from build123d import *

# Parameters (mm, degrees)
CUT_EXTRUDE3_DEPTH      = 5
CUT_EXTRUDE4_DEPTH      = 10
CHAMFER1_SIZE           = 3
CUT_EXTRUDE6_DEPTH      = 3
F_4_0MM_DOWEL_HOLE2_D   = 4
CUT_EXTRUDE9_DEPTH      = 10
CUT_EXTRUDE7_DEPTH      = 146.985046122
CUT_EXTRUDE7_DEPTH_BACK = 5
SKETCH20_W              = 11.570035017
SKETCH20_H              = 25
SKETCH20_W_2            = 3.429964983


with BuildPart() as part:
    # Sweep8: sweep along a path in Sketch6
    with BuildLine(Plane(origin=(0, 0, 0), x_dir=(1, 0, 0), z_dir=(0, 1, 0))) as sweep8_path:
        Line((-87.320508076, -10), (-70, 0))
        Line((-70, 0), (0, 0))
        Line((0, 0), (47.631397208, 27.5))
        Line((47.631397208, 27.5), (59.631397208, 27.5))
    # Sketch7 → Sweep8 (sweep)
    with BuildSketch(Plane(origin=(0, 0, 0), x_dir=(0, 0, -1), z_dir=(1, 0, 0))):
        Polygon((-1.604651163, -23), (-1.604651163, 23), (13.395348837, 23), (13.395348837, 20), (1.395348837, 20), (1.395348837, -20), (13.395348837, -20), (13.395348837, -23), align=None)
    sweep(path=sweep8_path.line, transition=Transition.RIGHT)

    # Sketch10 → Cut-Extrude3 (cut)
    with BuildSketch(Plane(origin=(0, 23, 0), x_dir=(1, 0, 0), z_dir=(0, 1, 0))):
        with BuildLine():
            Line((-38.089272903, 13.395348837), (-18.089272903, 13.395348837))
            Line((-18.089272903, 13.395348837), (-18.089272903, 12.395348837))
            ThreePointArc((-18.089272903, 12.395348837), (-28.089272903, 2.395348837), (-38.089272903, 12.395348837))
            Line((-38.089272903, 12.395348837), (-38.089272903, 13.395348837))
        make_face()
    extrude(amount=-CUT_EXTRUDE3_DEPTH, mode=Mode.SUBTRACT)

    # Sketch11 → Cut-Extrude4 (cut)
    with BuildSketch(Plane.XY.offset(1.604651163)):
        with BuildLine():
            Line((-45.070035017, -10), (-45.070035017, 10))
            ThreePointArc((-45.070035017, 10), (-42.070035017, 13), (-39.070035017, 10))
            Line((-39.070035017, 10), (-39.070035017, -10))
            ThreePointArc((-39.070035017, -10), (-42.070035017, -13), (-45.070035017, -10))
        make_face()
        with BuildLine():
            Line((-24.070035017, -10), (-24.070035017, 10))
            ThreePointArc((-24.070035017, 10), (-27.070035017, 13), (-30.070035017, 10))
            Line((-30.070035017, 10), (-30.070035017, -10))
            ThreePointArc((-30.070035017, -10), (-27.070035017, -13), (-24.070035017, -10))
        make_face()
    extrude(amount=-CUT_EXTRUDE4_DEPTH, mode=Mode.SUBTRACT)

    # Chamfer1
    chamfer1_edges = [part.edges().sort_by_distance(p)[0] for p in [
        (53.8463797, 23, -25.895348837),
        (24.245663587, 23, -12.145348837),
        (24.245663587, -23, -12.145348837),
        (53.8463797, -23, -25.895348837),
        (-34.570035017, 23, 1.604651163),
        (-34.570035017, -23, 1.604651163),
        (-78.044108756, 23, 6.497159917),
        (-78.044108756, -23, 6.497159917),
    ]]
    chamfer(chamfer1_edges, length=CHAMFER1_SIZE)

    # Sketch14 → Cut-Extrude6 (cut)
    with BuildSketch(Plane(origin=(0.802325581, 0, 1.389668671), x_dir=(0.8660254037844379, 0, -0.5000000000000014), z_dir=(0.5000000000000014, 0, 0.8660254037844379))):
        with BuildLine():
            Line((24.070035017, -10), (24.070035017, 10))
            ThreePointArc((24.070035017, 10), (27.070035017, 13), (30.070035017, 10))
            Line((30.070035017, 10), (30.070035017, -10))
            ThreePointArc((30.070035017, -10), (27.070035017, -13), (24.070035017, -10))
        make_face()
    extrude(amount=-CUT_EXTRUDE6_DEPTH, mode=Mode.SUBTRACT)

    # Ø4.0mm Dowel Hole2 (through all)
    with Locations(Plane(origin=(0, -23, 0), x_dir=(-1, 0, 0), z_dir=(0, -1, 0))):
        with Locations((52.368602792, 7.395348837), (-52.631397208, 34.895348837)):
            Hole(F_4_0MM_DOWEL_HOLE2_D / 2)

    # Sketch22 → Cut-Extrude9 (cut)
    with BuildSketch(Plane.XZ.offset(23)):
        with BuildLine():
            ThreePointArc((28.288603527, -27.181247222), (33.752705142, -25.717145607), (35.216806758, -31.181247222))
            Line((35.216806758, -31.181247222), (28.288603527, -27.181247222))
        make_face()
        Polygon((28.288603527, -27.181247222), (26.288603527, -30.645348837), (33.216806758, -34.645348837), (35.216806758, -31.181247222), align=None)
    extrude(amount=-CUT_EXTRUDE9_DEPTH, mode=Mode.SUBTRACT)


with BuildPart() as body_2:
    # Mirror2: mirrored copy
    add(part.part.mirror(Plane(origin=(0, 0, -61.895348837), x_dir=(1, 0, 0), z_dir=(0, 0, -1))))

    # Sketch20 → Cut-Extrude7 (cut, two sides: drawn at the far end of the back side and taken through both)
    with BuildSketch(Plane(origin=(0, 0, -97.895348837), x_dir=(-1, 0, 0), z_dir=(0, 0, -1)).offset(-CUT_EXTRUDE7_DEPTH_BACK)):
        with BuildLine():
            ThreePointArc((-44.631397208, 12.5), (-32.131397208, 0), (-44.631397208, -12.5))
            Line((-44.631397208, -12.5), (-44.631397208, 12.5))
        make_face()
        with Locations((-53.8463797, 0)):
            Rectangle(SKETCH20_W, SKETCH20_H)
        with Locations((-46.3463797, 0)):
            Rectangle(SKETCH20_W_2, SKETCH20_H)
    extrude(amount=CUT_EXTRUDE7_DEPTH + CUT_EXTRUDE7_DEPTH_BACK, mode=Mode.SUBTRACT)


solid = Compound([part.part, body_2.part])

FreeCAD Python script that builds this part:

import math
import FreeCAD as App
import Part
import Sketcher

V = App.Vector
Q = App.Units.Quantity


def edges_at(feature, points):
    """Names of the edges that pass closest to the given points."""
    edges = feature.Shape.Edges
    near = lambda p: min(range(len(edges)), key=lambda i: edges[i].distToShape(Part.Vertex(*p))[0])
    return sorted({f"Edge{near(p) + 1}" for p in points})

doc = App.newDocument("Part")
body = doc.addObject("PartDesign::Body", "Body")

sketch1 = doc.addObject("Sketcher::SketchObject", "Sketch")
body.addObject(sketch1)
sketch1.AttachmentSupport = (doc.YZ_Plane, [""])
sketch1.MapMode = "FlatFace"
sketch1.addGeometry(Part.LineSegment(V(23, 1.6, 0), V(-23, 1.6, 0)), False)
sketch1.addGeometry(Part.LineSegment(V(-23, 1.6, 0), V(-23, -13.4, 0)), False)
sketch1.addGeometry(Part.LineSegment(V(-23, -13.4, 0), V(-20, -13.4, 0)), False)
sketch1.addGeometry(Part.LineSegment(V(-20, -13.4, 0), V(-20, -1.4, 0)), False)
sketch1.addGeometry(Part.LineSegment(V(-20, -1.4, 0), V(20, -1.4, 0)), False)
sketch1.addGeometry(Part.LineSegment(V(20, -1.4, 0), V(20, -13.4, 0)), False)
sketch1.addGeometry(Part.LineSegment(V(20, -13.4, 0), V(23, -13.4, 0)), False)
sketch1.addGeometry(Part.LineSegment(V(23, -13.4, 0), V(23, 1.6, 0)), False)
sketch1.addConstraint(Sketcher.Constraint("Coincident", 0, 2, 1, 1))
sketch1.addConstraint(Sketcher.Constraint("Coincident", 1, 2, 2, 1))
sketch1.addConstraint(Sketcher.Constraint("Coincident", 2, 2, 3, 1))
sketch1.addConstraint(Sketcher.Constraint("Coincident", 3, 2, 4, 1))
sketch1.addConstraint(Sketcher.Constraint("Coincident", 4, 2, 5, 1))
sketch1.addConstraint(Sketcher.Constraint("Coincident", 5, 2, 6, 1))
sketch1.addConstraint(Sketcher.Constraint("Coincident", 6, 2, 7, 1))
sketch1.addConstraint(Sketcher.Constraint("Coincident", 7, 2, 0, 1))
sketch1.addConstraint(Sketcher.Constraint("Horizontal", 0))
sketch1.addConstraint(Sketcher.Constraint("Vertical", 1))
sketch1.addConstraint(Sketcher.Constraint("Horizontal", 2))
sketch1.addConstraint(Sketcher.Constraint("Vertical", 3))
sketch1.addConstraint(Sketcher.Constraint("Horizontal", 4))
sketch1.addConstraint(Sketcher.Constraint("Vertical", 5))
sketch1.addConstraint(Sketcher.Constraint("Horizontal", 6))
sketch1.addConstraint(Sketcher.Constraint("Vertical", 7))
sketch1.addConstraint(Sketcher.Constraint("Symmetric", 2, 2, 5, 2, -2))
sketch1.addConstraint(Sketcher.Constraint("Equal", 2, 6))
sketch1.addConstraint(Sketcher.Constraint("DistanceX", 0, 2, 0, 1, 46.0))
sketch1.addConstraint(Sketcher.Constraint("DistanceX", 2, 1, 2, 2, 3.0))
sketch1.addConstraint(Sketcher.Constraint("DistanceY", 1, 2, 1, 1, 15.0))
sketch1.addConstraint(Sketcher.Constraint("DistanceY", 3, 1, 3, 2, 12.0))
sketch1.addConstraint(Sketcher.Constraint("DistanceY", -1, 1, 0, 2, 1.604651))

sketch2 = doc.addObject("Sketcher::SketchObject", "Sketch001")
body.addObject(sketch2)
sketch2.AttachmentSupport = (doc.XZ_Plane, [""])
sketch2.MapMode = "FlatFace"
sketch2.addGeometry(Part.LineSegment(V(-87, 10, 0), V(-70, 0, 0)), False)
sketch2.addGeometry(Part.LineSegment(V(-70, 0, 0), V(0, 0, 0)), False)
sketch2.addGeometry(Part.LineSegment(V(0, 0, 0), V(48, -28, 0)), False)
sketch2.addGeometry(Part.LineSegment(V(48, -28, 0), V(60, -28, 0)), False)
sketch2.addConstraint(Sketcher.Constraint("Coincident", 0, 2, 1, 1))
sketch2.addConstraint(Sketcher.Constraint("Coincident", 1, 2, 2, 1))
sketch2.addConstraint(Sketcher.Constraint("Coincident", 2, 2, 3, 1))
sketch2.addConstraint(Sketcher.Constraint("Horizontal", 1))
sketch2.addConstraint(Sketcher.Constraint("Horizontal", 3))
sketch2.addConstraint(Sketcher.Constraint("Coincident", 1, 2, -1, 1))
sketch2.addConstraint(Sketcher.Constraint("Parallel", 0, 2))
sketch2.addConstraint(Sketcher.Constraint("DistanceX", 1, 1, 1, 2, 70.0))
sketch2.addConstraint(Sketcher.Constraint("DistanceX", 3, 1, 3, 2, 12.0))
sketch2.addConstraint(Sketcher.Constraint("Angle", 0, Q("-30 deg")))
sketch2.addConstraint(Sketcher.Constraint("Distance", 0, 20.0))
sketch2.addConstraint(Sketcher.Constraint("Distance", 2, 55.0))
doc.recompute()

additivepipe = doc.addObject("PartDesign::AdditivePipe", "AdditivePipe")
body.addObject(additivepipe)
additivepipe.Profile = sketch1
additivepipe.Spine = (sketch2, ["Edge1", "Edge2", "Edge3", "Edge4"])
additivepipe.Transition = "Right corner"

sketch3 = doc.addObject("Sketcher::SketchObject", "Sketch002")
body.addObject(sketch3)
sketch3.AttachmentSupport = (doc.XZ_Plane, [""])
sketch3.MapMode = "FlatFace"
sketch3.AttachmentOffset = App.Placement(V(0, 0, -23), App.Rotation())
sketch3.addGeometry(Part.LineSegment(V(-18.1, -13.4, 0), V(-38.1, -13.4, 0)), False)
sketch3.addGeometry(Part.LineSegment(V(-38.1, -13.4, 0), V(-38.1, -12.4, 0)), False)
sketch3.addGeometry(Part.ArcOfCircle(Part.Circle(V(-28.1, -12.4, 0), V(0, 0, 1), 10), math.radians(0), math.radians(180)), False)
sketch3.addGeometry(Part.LineSegment(V(-18.1, -12.4, 0), V(-18.1, -13.4, 0)), False)
sketch3.addConstraint(Sketcher.Constraint("Coincident", 0, 2, 1, 1))
sketch3.addConstraint(Sketcher.Constraint("Tangent", 1, 2, 2, 2))
sketch3.addConstraint(Sketcher.Constraint("Tangent", 2, 1, 3, 1))
sketch3.addConstraint(Sketcher.Constraint("Coincident", 3, 2, 0, 1))
sketch3.addConstraint(Sketcher.Constraint("Horizontal", 0))
sketch3.addConstraint(Sketcher.Constraint("Vertical", 1))
sketch3.addConstraint(Sketcher.Constraint("Vertical", 3))
sketch3.addConstraint(Sketcher.Constraint("Radius", 2, 10.0))
sketch3.addConstraint(Sketcher.Constraint("DistanceY", 1, 1, 1, 2, 1.0))
sketch3.addConstraint(Sketcher.Constraint("DistanceY", 2, 3, -1, 1, 12.395349))
sketch3.addConstraint(Sketcher.Constraint("DistanceX", 2, 3, -1, 1, 28.089273))
pocket1 = doc.addObject("PartDesign::Pocket", "Pocket")
body.addObject(pocket1)
pocket1.Profile = sketch3
pocket1.Length = 5
pocket1.Reversed = True

sketch4 = doc.addObject("Sketcher::SketchObject", "Sketch003")
body.addObject(sketch4)
sketch4.AttachmentSupport = (doc.XY_Plane, [""])
sketch4.MapMode = "FlatFace"
sketch4.AttachmentOffset = App.Placement(V(0, 0, 1.604651), App.Rotation())
sketch4.addGeometry(Part.LineSegment(V(-45.1, 10, 0), V(-45.1, -10, 0)), False)
sketch4.addGeometry(Part.ArcOfCircle(Part.Circle(V(-42.1, -10, 0), V(0, 0, 1), 3), math.radians(180), math.radians(360)), False)
sketch4.addGeometry(Part.LineSegment(V(-39.1, -10, 0), V(-39.1, 10, 0)), False)
sketch4.addGeometry(Part.ArcOfCircle(Part.Circle(V(-42.1, 10, 0), V(0, 0, 1), 3), math.radians(0), math.radians(180)), False)
sketch4.addGeometry(Part.LineSegment(V(-24.1, -10, 0), V(-24.1, 10, 0)), False)
sketch4.addGeometry(Part.ArcOfCircle(Part.Circle(V(-27.1, 10, 0), V(0, 0, 1), 3), math.radians(0), math.radians(180)), False)
sketch4.addGeometry(Part.LineSegment(V(-30.1, 10, 0), V(-30.1, -10, 0)), False)
sketch4.addGeometry(Part.ArcOfCircle(Part.Circle(V(-27.1, -10, 0), V(0, 0, 1), 3), math.radians(180), math.radians(360)), False)
sketch4.addConstraint(Sketcher.Constraint("Tangent", 0, 2, 1, 1))
sketch4.addConstraint(Sketcher.Constraint("Tangent", 1, 2, 2, 1))
sketch4.addConstraint(Sketcher.Constraint("Tangent", 2, 2, 3, 1))
sketch4.addConstraint(Sketcher.Constraint("Tangent", 3, 2, 0, 1))
sketch4.addConstraint(Sketcher.Constraint("Tangent", 4, 2, 5, 1))
sketch4.addConstraint(Sketcher.Constraint("Tangent", 5, 2, 6, 1))
sketch4.addConstraint(Sketcher.Constraint("Tangent", 6, 2, 7, 1))
sketch4.addConstraint(Sketcher.Constraint("Tangent", 7, 2, 4, 1))
sketch4.addConstraint(Sketcher.Constraint("Vertical", 0))
sketch4.addConstraint(Sketcher.Constraint("Vertical", 2))
sketch4.addConstraint(Sketcher.Constraint("Vertical", 4))
sketch4.addConstraint(Sketcher.Constraint("Vertical", 6))
sketch4.addConstraint(Sketcher.Constraint("Equal", 3, 5))
sketch4.addConstraint(Sketcher.Constraint("Horizontal", 3, 3, 5, 3))
sketch4.addConstraint(Sketcher.Constraint("Horizontal", 1, 3, 7, 3))
sketch4.addConstraint(Sketcher.Constraint("Radius", 1, 3.0))
sketch4.addConstraint(Sketcher.Constraint("DistanceY", 0, 2, 0, 1, 20.0))
sketch4.addConstraint(Sketcher.Constraint("DistanceY", 1, 3, -1, 1, 10.0))
sketch4.addConstraint(Sketcher.Constraint("DistanceX", 3, 3, 5, 3, 15.0))
sketch4.addConstraint(Sketcher.Constraint("DistanceX", 1, 3, -1, 1, 42.070035))
pocket2 = doc.addObject("PartDesign::Pocket", "Pocket001")
body.addObject(pocket2)
pocket2.Profile = sketch4
pocket2.Length = 10
doc.recompute()

chamfer = doc.addObject("PartDesign::Chamfer", "Chamfer")
body.addObject(chamfer)
chamfer.Base = (pocket2, edges_at(pocket2, [
    (53.846, 23, -25.895),
    (24.246, 23, -12.145),
    (24.246, -23, -12.145),
    (53.846, -23, -25.895),
    (-34.57, 23, 1.605),
    (-34.57, -23, 1.605),
    (-78.044, 23, 6.497),
    (-78.044, -23, 6.497),
]))
chamfer.Size = 3

sketch5 = doc.addObject("Sketcher::SketchObject", "Sketch004")
body.addObject(sketch5)
sketch5.Placement = App.Placement(V(0.802326, 0, 1.389669), App.Rotation(V(0.866025404, 0, -0.5), V(0, 1, 0), V(0.5, 0, 0.866025404), "ZXY"))
sketch5.addGeometry(Part.LineSegment(V(24.1, 10, 0), V(24.1, -10, 0)), False)
sketch5.addGeometry(Part.ArcOfCircle(Part.Circle(V(27.1, -10, 0), V(0, 0, 1), 3), math.radians(180), math.radians(360)), False)
sketch5.addGeometry(Part.LineSegment(V(30.1, -10, 0), V(30.1, 10, 0)), False)
sketch5.addGeometry(Part.ArcOfCircle(Part.Circle(V(27.1, 10, 0), V(0, 0, 1), 3), math.radians(0), math.radians(180)), False)
sketch5.addConstraint(Sketcher.Constraint("Tangent", 0, 2, 1, 1))
sketch5.addConstraint(Sketcher.Constraint("Tangent", 1, 2, 2, 1))
sketch5.addConstraint(Sketcher.Constraint("Tangent", 2, 2, 3, 1))
sketch5.addConstraint(Sketcher.Constraint("Tangent", 3, 2, 0, 1))
sketch5.addConstraint(Sketcher.Constraint("Vertical", 0))
sketch5.addConstraint(Sketcher.Constraint("Vertical", 2))
sketch5.addConstraint(Sketcher.Constraint("Radius", 1, 3.0))
sketch5.addConstraint(Sketcher.Constraint("DistanceY", 0, 2, 0, 1, 20.0))
sketch5.addConstraint(Sketcher.Constraint("DistanceY", 1, 3, -1, 1, 10.0))
sketch5.addConstraint(Sketcher.Constraint("DistanceX", -1, 1, 1, 3, 27.070035))
pocket3 = doc.addObject("PartDesign::Pocket", "Pocket002")
body.addObject(pocket3)
pocket3.Profile = sketch5
pocket3.Length = 3

sketch6 = doc.addObject("Sketcher::SketchObject", "Sketch005")
body.addObject(sketch6)
sketch6.AttachmentSupport = (doc.XZ_Plane, [""])
sketch6.MapMode = "FlatFace"
sketch6.AttachmentOffset = App.Placement(V(0, 0, 23), App.Rotation())
sketch6.addGeometry(Part.Circle(V(-52.4, -7.4, 0), V(0, 0, 1), 2), False)
sketch6.addGeometry(Part.Circle(V(52.6, -34.9, 0), V(0, 0, 1), 2), False)
sketch6.addConstraint(Sketcher.Constraint("Equal", 0, 1))
sketch6.addConstraint(Sketcher.Constraint("Diameter", 0, 4.0))
sketch6.addConstraint(Sketcher.Constraint("DistanceX", 0, 3, 1, 3, 105.0))
sketch6.addConstraint(Sketcher.Constraint("DistanceY", 1, 3, 0, 3, 27.5))
sketch6.addConstraint(Sketcher.Constraint("DistanceY", 0, 3, -1, 1, 7.395349))
sketch6.addConstraint(Sketcher.Constraint("DistanceX", 0, 3, -1, 1, 52.368603))
doc.recompute()
hole = doc.addObject("PartDesign::Hole", "Hole")
body.addObject(hole)
hole.Profile = sketch6
hole.ThreadType = "None"
hole.Diameter = 4
hole.DepthType = "ThroughAll"

sketch7 = doc.addObject("Sketcher::SketchObject", "Sketch006")
body.addObject(sketch7)
sketch7.AttachmentSupport = (doc.XZ_Plane, [""])
sketch7.MapMode = "FlatFace"
sketch7.AttachmentOffset = App.Placement(V(0, 0, 23), App.Rotation())
sketch7.addGeometry(Part.ArcOfCircle(Part.Circle(V(31.8, -29.2, 0), V(0, 0, 1), 4), math.radians(-30), math.radians(150)), False)
sketch7.addGeometry(Part.LineSegment(V(28.3, -27.2, 0), V(26.3, -30.6, 0)), False)
sketch7.addGeometry(Part.LineSegment(V(26.3, -30.6, 0), V(33.2, -34.6, 0)), False)
sketch7.addGeometry(Part.LineSegment(V(33.2, -34.6, 0), V(35.2, -31.2, 0)), False)
sketch7.addConstraint(Sketcher.Constraint("Tangent", 0, 2, 1, 1))
sketch7.addConstraint(Sketcher.Constraint("Coincident", 1, 2, 2, 1))
sketch7.addConstraint(Sketcher.Constraint("Coincident", 2, 2, 3, 1))
sketch7.addConstraint(Sketcher.Constraint("Tangent", 3, 2, 0, 1))
sketch7.addConstraint(Sketcher.Constraint("Perpendicular", 1, 2))
sketch7.addConstraint(Sketcher.Constraint("Perpendicular", 2, 3))
sketch7.addConstraint(Sketcher.Constraint("Radius", 0, 4.0))
sketch7.addConstraint(Sketcher.Constraint("Angle", 1, Q("-120 deg")))
sketch7.addConstraint(Sketcher.Constraint("Distance", 1, 4.0))
sketch7.addConstraint(Sketcher.Constraint("DistanceY", 1, 2, -1, 1, 30.645349))
sketch7.addConstraint(Sketcher.Constraint("DistanceX", -1, 1, 0, 3, 31.752705))
pocket4 = doc.addObject("PartDesign::Pocket", "Pocket003")
body.addObject(pocket4)
pocket4.Profile = sketch7
pocket4.Length = 10
body2 = doc.addObject("PartDesign::Body", "Body001")
doc.recompute()

mirroring = doc.addObject("Part::Mirroring", "Mirroring")
mirroring.Source = body
mirroring.Base = V(0, 0, -61.895349)
mirroring.Normal = V(0, 0, -1)
body2.BaseFeature = mirroring
doc.recompute()

sketch8 = doc.addObject("Sketcher::SketchObject", "Sketch007")
body2.addObject(sketch8)
sketch8.AttachmentSupport = (doc.getObject("XY_Plane001"), [""])
sketch8.MapMode = "FlatFace"
sketch8.AttachmentOffset = App.Placement(V(0, 0, -97.895349), App.Rotation())
sketch8.addGeometry(Part.ArcOfCircle(Part.Circle(V(45, 0, 0), V(0, 0, 1), 12), math.radians(90), math.radians(270)), False)
sketch8.addGeometry(Part.LineSegment(V(45, 12, 0), V(60, 12, 0)), False)
sketch8.addGeometry(Part.LineSegment(V(60, 12, 0), V(60, -12, 0)), False)
sketch8.addGeometry(Part.LineSegment(V(60, -12, 0), V(45, -12, 0)), False)
sketch8.addConstraint(Sketcher.Constraint("Tangent", 0, 1, 1, 1))
sketch8.addConstraint(Sketcher.Constraint("Coincident", 1, 2, 2, 1))
sketch8.addConstraint(Sketcher.Constraint("Coincident", 2, 2, 3, 1))
sketch8.addConstraint(Sketcher.Constraint("Tangent", 3, 2, 0, 2))
sketch8.addConstraint(Sketcher.Constraint("Horizontal", 1))
sketch8.addConstraint(Sketcher.Constraint("Vertical", 2))
sketch8.addConstraint(Sketcher.Constraint("Horizontal", 3))
sketch8.addConstraint(Sketcher.Constraint("PointOnObject", 0, 3, -1))
sketch8.addConstraint(Sketcher.Constraint("Radius", 0, 12.5))
sketch8.addConstraint(Sketcher.Constraint("DistanceX", 1, 1, 1, 2, 15.0))
sketch8.addConstraint(Sketcher.Constraint("DistanceX", -1, 1, 0, 3, 44.631397))
pocket5 = doc.addObject("PartDesign::Pocket", "Pocket004")
body2.addObject(pocket5)
pocket5.Profile = sketch8
pocket5.Type = "ThroughAll"
pocket5.Midplane = True
mirroring.Visibility = False

doc.recompute()
